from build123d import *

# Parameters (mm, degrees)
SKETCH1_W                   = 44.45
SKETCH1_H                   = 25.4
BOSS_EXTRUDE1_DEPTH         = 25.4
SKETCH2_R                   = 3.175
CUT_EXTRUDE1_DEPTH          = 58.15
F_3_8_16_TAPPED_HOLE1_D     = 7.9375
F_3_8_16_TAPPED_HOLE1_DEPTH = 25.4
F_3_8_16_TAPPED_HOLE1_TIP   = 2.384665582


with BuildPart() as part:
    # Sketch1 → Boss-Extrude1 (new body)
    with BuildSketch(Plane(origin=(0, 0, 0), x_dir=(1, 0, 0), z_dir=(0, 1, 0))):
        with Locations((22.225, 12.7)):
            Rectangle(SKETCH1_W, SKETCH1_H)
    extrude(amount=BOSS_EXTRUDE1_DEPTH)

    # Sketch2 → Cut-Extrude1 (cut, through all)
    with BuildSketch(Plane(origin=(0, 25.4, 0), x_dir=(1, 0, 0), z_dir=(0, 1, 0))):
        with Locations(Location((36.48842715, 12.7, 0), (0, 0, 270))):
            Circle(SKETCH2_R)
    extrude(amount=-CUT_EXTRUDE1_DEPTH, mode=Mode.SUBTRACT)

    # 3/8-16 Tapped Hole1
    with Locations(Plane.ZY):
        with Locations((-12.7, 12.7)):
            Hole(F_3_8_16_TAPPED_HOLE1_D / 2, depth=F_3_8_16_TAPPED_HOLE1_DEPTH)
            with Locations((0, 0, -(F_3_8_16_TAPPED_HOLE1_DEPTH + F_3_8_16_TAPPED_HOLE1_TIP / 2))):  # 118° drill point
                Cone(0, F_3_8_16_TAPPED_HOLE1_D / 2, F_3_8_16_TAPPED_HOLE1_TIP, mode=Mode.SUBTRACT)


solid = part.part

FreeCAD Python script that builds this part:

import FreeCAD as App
import Part
import Sketcher
Q = App.Units.Quantity


def add_polygon(sketch, points):
    """Adds a closed chain of lines whose ends are joined by coincident constraints."""
    first, n = sketch.GeometryCount, len(points)
    for a, b in zip(points, points[1:] + points[:1]):
        sketch.addGeometry(Part.LineSegment(App.Vector(*a, 0), App.Vector(*b, 0)), False)
    for i in range(n):
        sketch.addConstraint(Sketcher.Constraint("Coincident", first + i, 2, first + (i + 1) % n, 1))

doc = App.newDocument("Part")
body = doc.addObject("PartDesign::Body", "Body")

# Sketch on XZ plane
sketch1 = body.newObject("Sketcher::SketchObject", "Sketch")
sketch1.AttachmentSupport = (doc.getObject("XZ_Plane"), [""])
sketch1.MapMode = "FlatFace"
add_polygon(sketch1, [(0, -25), (0, 0), (44, 0), (44, -25)])  # lines 0-3
sketch1.addConstraint(Sketcher.Constraint("Vertical", 0))
sketch1.addConstraint(Sketcher.Constraint("Horizontal", 1))
sketch1.addConstraint(Sketcher.Constraint("Vertical", 2))
sketch1.addConstraint(Sketcher.Constraint("Horizontal", 3))
sketch1.addConstraint(Sketcher.Constraint("Coincident", 0, 2, -1, 1))
sketch1.addConstraint(Sketcher.Constraint("DistanceY", 0, 1, 0, 2, Q("1 in")))
sketch1.addConstraint(Sketcher.Constraint("DistanceX", 1, 1, 1, 2, Q("1.75 in")))
pad1 = body.newObject("PartDesign::Pad", "Pad")
pad1.Profile = sketch1
pad1.Length = Q("1 in")
pad1.Reversed = True

# Sketch on XZ plane
sketch2 = body.newObject("Sketcher::SketchObject", "Sketch001")
sketch2.AttachmentSupport = (doc.getObject("XZ_Plane"), [""])
sketch2.MapMode = "FlatFace"
sketch2.AttachmentOffset = App.Placement(App.Vector(0, 0, -1 * 25.4), App.Rotation())
sketch2.addGeometry(Part.Circle(App.Vector(36.5, -12.7, 0), App.Vector(0, 0, 1), 3.2), False)
sketch2.addConstraint(Sketcher.Constraint("Diameter", 0, Q("0.25 in")))
sketch2.addConstraint(Sketcher.Constraint("DistanceY", 0, 3, -1, 1, Q("0.5 in")))
sketch2.addConstraint(Sketcher.Constraint("DistanceX", -1, 1, 0, 3, Q("36.488427 mm")))
pocket1 = body.newObject("PartDesign::Pocket", "Pocket")
pocket1.Profile = sketch2
pocket1.Type = "ThroughAll"
pocket1.Reversed = True

# Sketch on YZ plane
sketch3 = body.newObject("Sketcher::SketchObject", "Sketch002")
sketch3.AttachmentSupport = (doc.getObject("YZ_Plane"), [""])
sketch3.MapMode = "FlatFace"
sketch3.addGeometry(Part.Circle(App.Vector(12.7, -12.7, 0), App.Vector(0, 0, 1), 4), False)
sketch3.addConstraint(Sketcher.Constraint("Diameter", 0, Q("0.3125 in")))
sketch3.addConstraint(Sketcher.Constraint("DistanceX", -1, 1, 0, 3, Q("0.5 in")))
sketch3.addConstraint(Sketcher.Constraint("DistanceY", 0, 3, -1, 1, Q("0.5 in")))
doc.recompute()
hole = body.newObject("PartDesign::Hole", "Hole")
hole.Profile = sketch3
hole.ThreadType = "None"
hole.Diameter = Q("0.3125 in")
hole.DepthType = "Dimension"
hole.Depth = Q("1 in")
hole.DrillPoint = "Angled"
hole.DrillPointAngle = 118
hole.Reversed = True

doc.recompute()
